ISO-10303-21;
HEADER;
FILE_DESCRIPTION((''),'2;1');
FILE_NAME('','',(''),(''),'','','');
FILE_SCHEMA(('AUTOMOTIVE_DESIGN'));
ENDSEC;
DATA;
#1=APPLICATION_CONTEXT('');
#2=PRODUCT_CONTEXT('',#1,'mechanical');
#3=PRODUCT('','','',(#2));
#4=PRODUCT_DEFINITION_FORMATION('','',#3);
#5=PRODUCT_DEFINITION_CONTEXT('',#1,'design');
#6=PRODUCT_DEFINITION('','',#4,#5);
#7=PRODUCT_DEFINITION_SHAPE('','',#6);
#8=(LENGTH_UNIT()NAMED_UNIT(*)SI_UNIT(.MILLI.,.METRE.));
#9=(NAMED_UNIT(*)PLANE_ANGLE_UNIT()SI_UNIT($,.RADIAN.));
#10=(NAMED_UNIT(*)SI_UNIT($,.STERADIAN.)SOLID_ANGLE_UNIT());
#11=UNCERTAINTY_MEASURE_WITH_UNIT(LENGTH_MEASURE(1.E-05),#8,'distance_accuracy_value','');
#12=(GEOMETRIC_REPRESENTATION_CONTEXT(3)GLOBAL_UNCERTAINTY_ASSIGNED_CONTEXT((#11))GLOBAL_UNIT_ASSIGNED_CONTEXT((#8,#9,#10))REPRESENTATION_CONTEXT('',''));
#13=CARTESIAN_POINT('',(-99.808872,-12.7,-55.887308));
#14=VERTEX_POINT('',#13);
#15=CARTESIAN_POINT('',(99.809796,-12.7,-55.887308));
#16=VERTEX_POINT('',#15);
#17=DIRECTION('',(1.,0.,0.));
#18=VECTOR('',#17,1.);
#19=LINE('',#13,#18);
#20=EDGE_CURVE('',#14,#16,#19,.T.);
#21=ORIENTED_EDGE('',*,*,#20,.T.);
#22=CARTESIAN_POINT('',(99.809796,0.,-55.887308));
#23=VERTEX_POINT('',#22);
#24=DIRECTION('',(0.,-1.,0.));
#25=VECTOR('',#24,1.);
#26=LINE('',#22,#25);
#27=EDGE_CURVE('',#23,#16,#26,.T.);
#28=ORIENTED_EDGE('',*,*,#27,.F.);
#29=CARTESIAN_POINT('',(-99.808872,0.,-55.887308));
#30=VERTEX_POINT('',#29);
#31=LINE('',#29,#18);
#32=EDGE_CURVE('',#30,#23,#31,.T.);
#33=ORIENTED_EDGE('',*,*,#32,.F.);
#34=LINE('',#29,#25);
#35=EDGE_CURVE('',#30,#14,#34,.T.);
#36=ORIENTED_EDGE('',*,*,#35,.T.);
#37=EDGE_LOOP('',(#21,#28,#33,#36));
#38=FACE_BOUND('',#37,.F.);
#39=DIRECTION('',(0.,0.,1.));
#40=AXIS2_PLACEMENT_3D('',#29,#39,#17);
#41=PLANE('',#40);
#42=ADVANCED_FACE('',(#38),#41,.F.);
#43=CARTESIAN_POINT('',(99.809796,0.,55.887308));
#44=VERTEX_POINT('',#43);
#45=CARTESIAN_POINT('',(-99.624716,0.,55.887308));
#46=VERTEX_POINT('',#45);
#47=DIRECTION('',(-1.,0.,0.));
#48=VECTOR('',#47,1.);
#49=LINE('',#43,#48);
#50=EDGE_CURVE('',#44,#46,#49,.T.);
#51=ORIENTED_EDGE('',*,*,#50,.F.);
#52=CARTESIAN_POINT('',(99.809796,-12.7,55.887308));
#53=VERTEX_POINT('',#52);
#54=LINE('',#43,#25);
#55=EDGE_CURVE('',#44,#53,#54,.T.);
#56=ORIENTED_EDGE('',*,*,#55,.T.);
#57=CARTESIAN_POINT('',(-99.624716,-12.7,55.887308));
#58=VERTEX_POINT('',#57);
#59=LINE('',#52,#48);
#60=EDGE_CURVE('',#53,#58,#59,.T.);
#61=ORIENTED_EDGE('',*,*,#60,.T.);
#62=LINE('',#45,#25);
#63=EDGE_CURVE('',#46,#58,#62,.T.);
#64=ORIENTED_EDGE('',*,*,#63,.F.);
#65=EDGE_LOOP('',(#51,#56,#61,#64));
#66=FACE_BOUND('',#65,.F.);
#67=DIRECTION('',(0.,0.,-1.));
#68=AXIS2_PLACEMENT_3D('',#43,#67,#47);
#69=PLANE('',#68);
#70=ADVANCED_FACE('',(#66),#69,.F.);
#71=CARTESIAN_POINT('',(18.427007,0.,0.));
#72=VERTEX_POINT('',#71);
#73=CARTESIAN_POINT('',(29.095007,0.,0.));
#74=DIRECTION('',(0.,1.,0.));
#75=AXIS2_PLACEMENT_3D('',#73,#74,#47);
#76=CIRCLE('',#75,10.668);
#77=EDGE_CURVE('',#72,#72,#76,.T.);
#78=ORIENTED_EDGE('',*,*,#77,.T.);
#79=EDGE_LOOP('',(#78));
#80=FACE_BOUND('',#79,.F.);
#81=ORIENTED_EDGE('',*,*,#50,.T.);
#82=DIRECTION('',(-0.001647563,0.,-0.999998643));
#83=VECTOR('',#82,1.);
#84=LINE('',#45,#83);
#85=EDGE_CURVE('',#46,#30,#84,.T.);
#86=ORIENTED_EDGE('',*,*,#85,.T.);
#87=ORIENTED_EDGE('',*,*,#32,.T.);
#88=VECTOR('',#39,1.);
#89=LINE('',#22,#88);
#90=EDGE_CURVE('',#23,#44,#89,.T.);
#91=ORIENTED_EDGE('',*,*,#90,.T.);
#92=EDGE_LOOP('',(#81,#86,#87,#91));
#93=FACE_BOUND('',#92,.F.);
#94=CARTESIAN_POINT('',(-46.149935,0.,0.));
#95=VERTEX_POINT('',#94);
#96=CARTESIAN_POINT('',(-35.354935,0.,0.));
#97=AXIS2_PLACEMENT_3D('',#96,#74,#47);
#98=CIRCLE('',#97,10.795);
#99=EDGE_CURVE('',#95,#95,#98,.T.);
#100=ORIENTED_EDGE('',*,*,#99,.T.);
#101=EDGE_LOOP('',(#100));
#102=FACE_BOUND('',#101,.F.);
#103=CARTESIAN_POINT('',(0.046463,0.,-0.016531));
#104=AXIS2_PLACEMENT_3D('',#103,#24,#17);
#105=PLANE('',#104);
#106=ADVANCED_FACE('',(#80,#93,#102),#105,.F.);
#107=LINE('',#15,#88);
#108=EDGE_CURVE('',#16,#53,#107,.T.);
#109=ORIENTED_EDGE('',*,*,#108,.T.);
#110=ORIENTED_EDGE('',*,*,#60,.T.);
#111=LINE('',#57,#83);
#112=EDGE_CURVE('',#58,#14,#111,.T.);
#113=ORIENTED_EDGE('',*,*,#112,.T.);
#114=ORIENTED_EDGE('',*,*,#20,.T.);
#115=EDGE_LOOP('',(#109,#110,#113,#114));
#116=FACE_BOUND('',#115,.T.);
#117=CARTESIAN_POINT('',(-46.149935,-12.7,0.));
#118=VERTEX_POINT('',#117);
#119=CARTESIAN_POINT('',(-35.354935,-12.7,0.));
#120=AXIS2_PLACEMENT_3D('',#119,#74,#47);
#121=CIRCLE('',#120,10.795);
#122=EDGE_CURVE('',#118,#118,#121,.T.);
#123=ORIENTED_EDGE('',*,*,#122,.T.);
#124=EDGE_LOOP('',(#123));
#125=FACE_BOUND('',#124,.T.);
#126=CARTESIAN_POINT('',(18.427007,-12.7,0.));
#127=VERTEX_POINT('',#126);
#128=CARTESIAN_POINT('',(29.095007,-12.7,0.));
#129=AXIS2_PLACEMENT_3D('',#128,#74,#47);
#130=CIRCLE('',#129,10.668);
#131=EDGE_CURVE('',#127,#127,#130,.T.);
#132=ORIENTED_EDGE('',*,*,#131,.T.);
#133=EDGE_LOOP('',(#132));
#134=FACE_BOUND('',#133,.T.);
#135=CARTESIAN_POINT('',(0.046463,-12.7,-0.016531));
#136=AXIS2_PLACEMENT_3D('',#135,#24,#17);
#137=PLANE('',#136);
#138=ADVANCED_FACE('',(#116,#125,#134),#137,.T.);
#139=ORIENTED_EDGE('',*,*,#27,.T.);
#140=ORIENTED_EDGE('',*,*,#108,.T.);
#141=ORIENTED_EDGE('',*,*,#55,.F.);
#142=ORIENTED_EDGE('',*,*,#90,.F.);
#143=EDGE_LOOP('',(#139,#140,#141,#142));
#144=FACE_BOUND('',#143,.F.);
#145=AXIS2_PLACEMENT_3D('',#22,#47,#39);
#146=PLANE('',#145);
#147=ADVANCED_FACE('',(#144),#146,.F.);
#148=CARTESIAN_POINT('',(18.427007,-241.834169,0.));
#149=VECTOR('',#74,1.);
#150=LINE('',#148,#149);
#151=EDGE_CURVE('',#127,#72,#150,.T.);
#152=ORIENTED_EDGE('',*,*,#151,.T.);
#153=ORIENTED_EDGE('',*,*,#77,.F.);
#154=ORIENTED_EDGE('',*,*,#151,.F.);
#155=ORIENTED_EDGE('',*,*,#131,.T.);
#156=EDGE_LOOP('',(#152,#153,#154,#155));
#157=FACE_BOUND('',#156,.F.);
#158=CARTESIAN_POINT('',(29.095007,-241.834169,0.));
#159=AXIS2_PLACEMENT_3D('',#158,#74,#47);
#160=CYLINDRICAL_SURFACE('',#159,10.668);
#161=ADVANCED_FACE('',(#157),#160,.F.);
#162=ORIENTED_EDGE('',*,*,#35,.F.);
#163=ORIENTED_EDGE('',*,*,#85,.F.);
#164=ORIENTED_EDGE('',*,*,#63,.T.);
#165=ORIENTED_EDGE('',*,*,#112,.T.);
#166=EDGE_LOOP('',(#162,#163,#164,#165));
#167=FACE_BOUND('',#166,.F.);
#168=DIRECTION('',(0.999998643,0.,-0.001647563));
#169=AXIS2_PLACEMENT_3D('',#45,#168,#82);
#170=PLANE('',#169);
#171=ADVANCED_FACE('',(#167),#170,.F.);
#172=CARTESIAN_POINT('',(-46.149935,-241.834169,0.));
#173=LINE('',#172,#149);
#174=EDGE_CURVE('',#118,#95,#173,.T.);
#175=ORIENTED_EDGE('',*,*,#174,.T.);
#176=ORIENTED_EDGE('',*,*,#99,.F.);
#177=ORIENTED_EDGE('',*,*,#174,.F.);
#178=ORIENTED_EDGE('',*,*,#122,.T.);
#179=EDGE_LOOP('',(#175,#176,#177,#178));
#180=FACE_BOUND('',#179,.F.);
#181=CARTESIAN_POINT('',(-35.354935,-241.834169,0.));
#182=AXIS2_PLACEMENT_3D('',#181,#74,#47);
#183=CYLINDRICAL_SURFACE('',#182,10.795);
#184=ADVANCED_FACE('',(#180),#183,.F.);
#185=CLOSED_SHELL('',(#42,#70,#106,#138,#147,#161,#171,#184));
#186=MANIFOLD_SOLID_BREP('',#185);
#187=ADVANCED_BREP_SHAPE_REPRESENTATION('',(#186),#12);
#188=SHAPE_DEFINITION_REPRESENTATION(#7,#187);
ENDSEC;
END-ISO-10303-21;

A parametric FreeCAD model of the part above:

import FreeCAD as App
import Part
import Sketcher

V = App.Vector
Q = App.Units.Quantity


def add_polygon(sketch, points):
    """Adds a closed chain of lines whose ends are joined by coincident constraints."""
    first, n = sketch.GeometryCount, len(points)
    for a, b in zip(points, points[1:] + points[:1]):
        sketch.addGeometry(Part.LineSegment(App.Vector(*a, 0), App.Vector(*b, 0)), False)
    for i in range(n):
        sketch.addConstraint(Sketcher.Constraint("Coincident", first + i, 2, first + (i + 1) % n, 1))

doc = App.newDocument("Part")
body = doc.addObject("PartDesign::Body", "Body")

# Sketch on XZ plane
sketch1 = doc.addObject("Sketcher::SketchObject", "Sketch")
body.addObject(sketch1)
sketch1.AttachmentSupport = (doc.XZ_Plane, [""])
sketch1.MapMode = "FlatFace"
add_polygon(sketch1, [(100, 56), (-100, 56), (-100, -56), (100, -56)])  # lines 0-3
sketch1.addConstraint(Sketcher.Constraint("Horizontal", 0))
sketch1.addConstraint(Sketcher.Constraint("Horizontal", 2))
sketch1.addConstraint(Sketcher.Constraint("Vertical", 3))
sketch1.addConstraint(Sketcher.Constraint("DistanceX", 2, 1, 2, 2, Q("199.618668 mm")))
sketch1.addConstraint(Sketcher.Constraint("DistanceX", 0, 2, 0, 1, Q("199.434512 mm")))
sketch1.addConstraint(Sketcher.Constraint("DistanceY", 3, 1, 3, 2, Q("111.774616 mm")))
sketch1.addConstraint(Sketcher.Constraint("DistanceX", 1, 2, -1, 1, Q("99.808872 mm")))
sketch1.addConstraint(Sketcher.Constraint("DistanceY", -1, 1, 0, 2, Q("55.887308 mm")))
pad1 = doc.addObject("PartDesign::Pad", "Pad")
body.addObject(pad1)
pad1.Profile = sketch1
pad1.Length = Q("0.5 in")

# Sketch on XZ plane
sketch2 = doc.addObject("Sketcher::SketchObject", "Sketch001")
body.addObject(sketch2)
sketch2.AttachmentSupport = (doc.XZ_Plane, [""])
sketch2.MapMode = "FlatFace"
sketch2.AttachmentOffset = App.Placement(V(0, 0, 0.5 * 25.4), App.Rotation())
sketch2.addGeometry(Part.Circle(V(-35, 0, 0), V(0, 0, 1), 11), False)
sketch2.addConstraint(Sketcher.Constraint("PointOnObject", 0, 3, -1))
sketch2.addConstraint(Sketcher.Constraint("Diameter", 0, Q("0.85 in")))
sketch2.addConstraint(Sketcher.Constraint("DistanceX", 0, 3, -1, 1, Q("35.354935 mm")))
doc.recompute()
hole = doc.addObject("PartDesign::Hole", "Hole")
body.addObject(hole)
hole.Profile = sketch2
hole.ThreadType = "None"
hole.Diameter = Q("0.85 in")
hole.DepthType = "ThroughAll"

# Sketch on XZ plane
sketch3 = doc.addObject("Sketcher::SketchObject", "Sketch002")
body.addObject(sketch3)
sketch3.AttachmentSupport = (doc.XZ_Plane, [""])
sketch3.MapMode = "FlatFace"
sketch3.AttachmentOffset = App.Placement(V(0, 0, 0.5 * 25.4), App.Rotation())
sketch3.addGeometry(Part.Circle(V(29, 0, 0), V(0, 0, 1), 11), False)
sketch3.addConstraint(Sketcher.Constraint("PointOnObject", 0, 3, -1))
sketch3.addConstraint(Sketcher.Constraint("Diameter", 0, Q("0.84 in")))
sketch3.addConstraint(Sketcher.Constraint("DistanceX", -1, 1, 0, 3, Q("29.095007 mm")))
doc.recompute()
hole2 = doc.addObject("PartDesign::Hole", "Hole001")
body.addObject(hole2)
hole2.Profile = sketch3
hole2.ThreadType = "None"
hole2.Diameter = Q("0.84 in")
hole2.DepthType = "ThroughAll"

doc.recompute()
